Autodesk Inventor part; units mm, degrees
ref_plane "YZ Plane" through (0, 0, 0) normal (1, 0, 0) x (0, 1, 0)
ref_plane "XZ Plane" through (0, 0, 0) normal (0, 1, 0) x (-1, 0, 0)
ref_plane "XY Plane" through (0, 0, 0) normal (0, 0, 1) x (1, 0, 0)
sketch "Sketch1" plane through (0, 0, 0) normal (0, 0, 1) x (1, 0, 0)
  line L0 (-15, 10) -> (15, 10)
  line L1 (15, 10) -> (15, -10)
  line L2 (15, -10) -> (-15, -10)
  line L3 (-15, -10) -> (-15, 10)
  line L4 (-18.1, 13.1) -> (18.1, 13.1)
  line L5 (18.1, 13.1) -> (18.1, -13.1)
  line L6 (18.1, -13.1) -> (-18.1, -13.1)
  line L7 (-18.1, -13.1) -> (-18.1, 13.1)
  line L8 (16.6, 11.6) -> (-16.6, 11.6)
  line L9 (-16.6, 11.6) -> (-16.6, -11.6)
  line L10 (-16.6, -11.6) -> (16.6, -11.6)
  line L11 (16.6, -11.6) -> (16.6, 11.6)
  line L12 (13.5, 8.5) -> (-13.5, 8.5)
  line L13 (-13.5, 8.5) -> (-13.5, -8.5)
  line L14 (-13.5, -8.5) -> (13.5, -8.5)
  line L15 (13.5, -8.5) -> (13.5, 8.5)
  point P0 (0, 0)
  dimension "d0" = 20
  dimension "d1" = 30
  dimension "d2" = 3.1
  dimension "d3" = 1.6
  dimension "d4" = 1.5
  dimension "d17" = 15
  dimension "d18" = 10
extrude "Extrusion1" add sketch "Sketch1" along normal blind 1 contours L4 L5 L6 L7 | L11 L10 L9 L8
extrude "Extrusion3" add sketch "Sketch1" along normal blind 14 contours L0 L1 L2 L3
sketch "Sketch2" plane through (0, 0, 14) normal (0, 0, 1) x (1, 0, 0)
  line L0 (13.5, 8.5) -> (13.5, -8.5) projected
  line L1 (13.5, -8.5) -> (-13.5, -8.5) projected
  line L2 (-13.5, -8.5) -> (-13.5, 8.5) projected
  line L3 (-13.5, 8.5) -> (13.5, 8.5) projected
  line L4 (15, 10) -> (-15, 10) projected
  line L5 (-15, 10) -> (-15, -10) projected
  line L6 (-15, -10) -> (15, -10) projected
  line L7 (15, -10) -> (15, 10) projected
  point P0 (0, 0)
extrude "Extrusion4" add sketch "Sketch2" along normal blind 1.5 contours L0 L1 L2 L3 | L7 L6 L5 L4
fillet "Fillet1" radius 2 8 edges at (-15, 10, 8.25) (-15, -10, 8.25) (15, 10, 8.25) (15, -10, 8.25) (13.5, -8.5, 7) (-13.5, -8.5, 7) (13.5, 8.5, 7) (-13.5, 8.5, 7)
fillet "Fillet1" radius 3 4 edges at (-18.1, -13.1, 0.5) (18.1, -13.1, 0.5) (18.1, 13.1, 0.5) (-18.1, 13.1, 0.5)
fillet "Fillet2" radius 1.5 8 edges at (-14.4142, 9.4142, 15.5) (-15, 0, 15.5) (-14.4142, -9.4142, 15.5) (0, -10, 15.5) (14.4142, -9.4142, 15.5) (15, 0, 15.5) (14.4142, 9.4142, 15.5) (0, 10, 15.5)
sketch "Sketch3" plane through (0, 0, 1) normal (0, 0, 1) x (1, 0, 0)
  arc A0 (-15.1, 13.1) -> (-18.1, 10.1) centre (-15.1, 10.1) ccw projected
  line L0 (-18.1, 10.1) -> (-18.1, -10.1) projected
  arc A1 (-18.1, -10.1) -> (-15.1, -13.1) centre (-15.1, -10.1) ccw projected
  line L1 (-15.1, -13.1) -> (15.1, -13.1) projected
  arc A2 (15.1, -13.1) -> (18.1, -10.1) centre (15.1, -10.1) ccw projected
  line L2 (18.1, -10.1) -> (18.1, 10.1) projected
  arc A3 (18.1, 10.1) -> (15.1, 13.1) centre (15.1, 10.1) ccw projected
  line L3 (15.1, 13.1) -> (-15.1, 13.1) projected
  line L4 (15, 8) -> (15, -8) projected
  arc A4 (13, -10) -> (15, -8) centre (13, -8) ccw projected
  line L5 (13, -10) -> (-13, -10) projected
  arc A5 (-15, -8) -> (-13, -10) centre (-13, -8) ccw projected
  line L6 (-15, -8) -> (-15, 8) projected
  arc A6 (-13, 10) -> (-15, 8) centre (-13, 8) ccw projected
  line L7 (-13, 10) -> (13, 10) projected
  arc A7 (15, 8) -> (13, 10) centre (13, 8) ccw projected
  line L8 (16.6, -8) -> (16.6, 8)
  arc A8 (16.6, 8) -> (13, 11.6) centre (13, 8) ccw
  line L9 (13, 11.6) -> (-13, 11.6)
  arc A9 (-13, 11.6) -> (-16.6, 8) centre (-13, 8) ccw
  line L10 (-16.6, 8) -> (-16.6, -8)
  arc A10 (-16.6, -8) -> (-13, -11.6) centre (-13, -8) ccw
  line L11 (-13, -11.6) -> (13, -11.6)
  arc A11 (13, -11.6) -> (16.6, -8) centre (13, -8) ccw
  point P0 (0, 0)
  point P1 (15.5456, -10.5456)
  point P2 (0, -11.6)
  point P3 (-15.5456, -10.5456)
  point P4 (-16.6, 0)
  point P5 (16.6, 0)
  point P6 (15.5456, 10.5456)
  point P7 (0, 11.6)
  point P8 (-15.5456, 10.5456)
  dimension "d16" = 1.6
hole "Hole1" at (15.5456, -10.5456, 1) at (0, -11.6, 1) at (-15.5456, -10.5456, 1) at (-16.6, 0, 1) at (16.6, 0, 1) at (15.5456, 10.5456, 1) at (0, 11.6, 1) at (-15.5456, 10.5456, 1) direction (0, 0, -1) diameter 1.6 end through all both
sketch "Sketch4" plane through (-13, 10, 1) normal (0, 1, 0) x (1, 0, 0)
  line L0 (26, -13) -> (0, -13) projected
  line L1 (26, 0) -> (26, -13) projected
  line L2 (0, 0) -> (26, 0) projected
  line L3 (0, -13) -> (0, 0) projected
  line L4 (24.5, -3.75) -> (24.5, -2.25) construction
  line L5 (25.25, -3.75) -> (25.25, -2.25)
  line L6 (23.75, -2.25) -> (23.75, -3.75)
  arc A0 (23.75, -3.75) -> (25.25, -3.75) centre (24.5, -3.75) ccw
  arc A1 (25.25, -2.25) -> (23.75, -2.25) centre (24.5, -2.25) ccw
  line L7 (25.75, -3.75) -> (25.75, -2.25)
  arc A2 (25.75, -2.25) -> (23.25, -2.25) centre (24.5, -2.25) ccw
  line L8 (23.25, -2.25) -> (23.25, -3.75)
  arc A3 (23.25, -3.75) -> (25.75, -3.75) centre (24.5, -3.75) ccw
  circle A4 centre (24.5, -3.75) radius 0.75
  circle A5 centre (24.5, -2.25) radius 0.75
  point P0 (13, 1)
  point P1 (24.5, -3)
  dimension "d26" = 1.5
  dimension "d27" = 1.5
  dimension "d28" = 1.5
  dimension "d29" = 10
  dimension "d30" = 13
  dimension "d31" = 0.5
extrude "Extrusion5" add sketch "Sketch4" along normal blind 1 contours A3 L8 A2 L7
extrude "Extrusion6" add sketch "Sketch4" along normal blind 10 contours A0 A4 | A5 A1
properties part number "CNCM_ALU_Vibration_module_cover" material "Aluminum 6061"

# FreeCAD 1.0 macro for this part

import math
import FreeCAD as App
import Part
import Sketcher
from FreeCAD import Vector


def edges_at(feature, points):
    """Names of the edges that pass closest to the given points."""
    edges = feature.Shape.Edges
    near = lambda p: min(range(len(edges)), key=lambda i: edges[i].distToShape(Part.Vertex(*p))[0])
    return sorted({f"Edge{near(p) + 1}" for p in points})


def add_polygon(sketch, points):
    """Adds a closed chain of lines whose ends are joined by coincident constraints."""
    first, n = sketch.GeometryCount, len(points)
    for a, b in zip(points, points[1:] + points[:1]):
        sketch.addGeometry(Part.LineSegment(App.Vector(*a, 0), App.Vector(*b, 0)), False)
    for i in range(n):
        sketch.addConstraint(Sketcher.Constraint("Coincident", first + i, 2, first + (i + 1) % n, 1))

doc = App.newDocument("Part")
body = doc.addObject("PartDesign::Body", "Body")

sketch1 = doc.addObject("Sketcher::SketchObject", "Sketch")
body.addObject(sketch1)
sketch1.AttachmentSupport = (doc.XY_Plane, [""])
sketch1.MapMode = "FlatFace"
add_polygon(sketch1, [(18, 13), (-18, 13), (-18, -13), (18, -13)])
add_polygon(sketch1, [(-15, -10), (-15, 10), (15, 10), (15, -10)])
sketch1.addConstraint([
    Sketcher.Constraint("Horizontal", 0),
    Sketcher.Constraint("Vertical", 1),
    Sketcher.Constraint("Horizontal", 2),
    Sketcher.Constraint("Vertical", 3),
    Sketcher.Constraint("Vertical", 4),
    Sketcher.Constraint("Horizontal", 5),
    Sketcher.Constraint("Vertical", 6),
    Sketcher.Constraint("Horizontal", 7),
    Sketcher.Constraint("Symmetric", 0, 2, 2, 2, -1, 1),
    Sketcher.Constraint("Symmetric", 4, 2, 6, 2, -1, 1),
    Sketcher.Constraint("DistanceX", 5, 1, 5, 2, 30.0),
    Sketcher.Constraint("DistanceY", 4, 1, 4, 2, 20.0),
    Sketcher.Constraint("DistanceX", 0, 2, 4, 2, 3.1),
    Sketcher.Constraint("DistanceY", 4, 2, 0, 2, 3.1),
])
pad1 = doc.addObject("PartDesign::Pad", "Pad")
body.addObject(pad1)
pad1.Profile = sketch1
pad1.Length = 1

sketch2 = doc.addObject("Sketcher::SketchObject", "Sketch001")
body.addObject(sketch2)
sketch2.AttachmentSupport = (doc.XY_Plane, [""])
sketch2.MapMode = "FlatFace"
add_polygon(sketch2, [(15, 10), (-15, 10), (-15, -10), (15, -10)])
add_polygon(sketch2, [(-14, 8), (14, 8), (14, -8), (-14, -8)])
sketch2.addConstraint([
    Sketcher.Constraint("Horizontal", 0),
    Sketcher.Constraint("Vertical", 1),
    Sketcher.Constraint("Horizontal", 2),
    Sketcher.Constraint("Vertical", 3),
    Sketcher.Constraint("Horizontal", 4),
    Sketcher.Constraint("Vertical", 5),
    Sketcher.Constraint("Horizontal", 6),
    Sketcher.Constraint("Vertical", 7),
    Sketcher.Constraint("Symmetric", 0, 2, 2, 2, -1, 1),
    Sketcher.Constraint("Symmetric", 4, 2, 6, 2, -1, 1),
    Sketcher.Constraint("DistanceX", 0, 2, 0, 1, 30.0),
    Sketcher.Constraint("DistanceY", 1, 2, 1, 1, 20.0),
    Sketcher.Constraint("DistanceX", 4, 2, 3, 2, 1.5),
    Sketcher.Constraint("DistanceY", 4, 2, 3, 2, 1.5),
])
pad2 = doc.addObject("PartDesign::Pad", "Pad001")
body.addObject(pad2)
pad2.Profile = sketch2
pad2.Length = 14

sketch3 = doc.addObject("Sketcher::SketchObject", "Sketch002")
body.addObject(sketch3)
sketch3.AttachmentSupport = (doc.XY_Plane, [""])
sketch3.MapMode = "FlatFace"
sketch3.AttachmentOffset = App.Placement(Vector(0, 0, 14), App.Rotation())
add_polygon(sketch3, [(15, -10), (15, 10), (-15, 10), (-15, -10)])
sketch3.addConstraint([
    Sketcher.Constraint("Vertical", 0),
    Sketcher.Constraint("Horizontal", 1),
    Sketcher.Constraint("Vertical", 2),
    Sketcher.Constraint("Horizontal", 3),
    Sketcher.Constraint("Symmetric", 0, 2, 2, 2, -1, 1),
    Sketcher.Constraint("DistanceX", 1, 2, 1, 1, 30.0),
    Sketcher.Constraint("DistanceY", 0, 1, 0, 2, 20.0),
])
pad3 = doc.addObject("PartDesign::Pad", "Pad002")
body.addObject(pad3)
pad3.Profile = sketch3
pad3.Length = 1.5
doc.recompute()

fillet = doc.addObject("PartDesign::Fillet", "Fillet")
body.addObject(fillet)
fillet.Base = (pad3, edges_at(pad3, [
    (-15, 10, 8.25),
    (-15, -10, 8.25),
    (15, 10, 8.25),
    (15, -10, 8.25),
    (13.5, -8.5, 7),
    (-13.5, -8.5, 7),
    (13.5, 8.5, 7),
    (-13.5, 8.5, 7),
]))
fillet.Radius = 2
doc.recompute()

fillet2 = doc.addObject("PartDesign::Fillet", "Fillet001")
body.addObject(fillet2)
fillet2.Base = (fillet, edges_at(fillet, [
    (-18.1, -13.1, 0.5),
    (18.1, -13.1, 0.5),
    (18.1, 13.1, 0.5),
    (-18.1, 13.1, 0.5),
]))
fillet2.Radius = 3
doc.recompute()

fillet3 = doc.addObject("PartDesign::Fillet", "Fillet002")
body.addObject(fillet3)
fillet3.Base = (fillet2, edges_at(fillet2, [
    (-14.414, 9.414, 15.5),
    (-15, 0, 15.5),
    (-14.414, -9.414, 15.5),
    (0, -10, 15.5),
    (14.414, -9.414, 15.5),
    (15, 0, 15.5),
    (14.414, 9.414, 15.5),
    (0, 10, 15.5),
]))
fillet3.Radius = 1.5

sketch4 = doc.addObject("Sketcher::SketchObject", "Sketch003")
body.addObject(sketch4)
sketch4.AttachmentSupport = (doc.XY_Plane, [""])
sketch4.MapMode = "FlatFace"
sketch4.AttachmentOffset = App.Placement(Vector(0, 0, 1), App.Rotation())
sketch4.addGeometry([
    Part.Circle(Vector(15.5, -10.5, 0), Vector(0, 0, 1), 0.8),
    Part.Circle(Vector(0, -11.6, 0), Vector(0, 0, 1), 0.8),
    Part.Circle(Vector(-15.5, -10.5, 0), Vector(0, 0, 1), 0.8),
    Part.Circle(Vector(-16.6, 0, 0), Vector(0, 0, 1), 0.8),
    Part.Circle(Vector(16.6, 0, 0), Vector(0, 0, 1), 0.8),
    Part.Circle(Vector(15.5, 10.5, 0), Vector(0, 0, 1), 0.8),
    Part.Circle(Vector(0, 11.6, 0), Vector(0, 0, 1), 0.8),
    Part.Circle(Vector(-15.5, 10.5, 0), Vector(0, 0, 1), 0.8),
], False)
sketch4.addConstraint([
    Sketcher.Constraint("Equal", 0, 1),
    Sketcher.Constraint("Equal", 1, 2),
    Sketcher.Constraint("Equal", 2, 3),
    Sketcher.Constraint("Equal", 3, 4),
    Sketcher.Constraint("Equal", 4, 5),
    Sketcher.Constraint("Equal", 5, 6),
    Sketcher.Constraint("Equal", 6, 7),
    Sketcher.Constraint("Symmetric", 3, 3, 4, 3, -1, 1),
    Sketcher.Constraint("Symmetric", 2, 3, 5, 3, -1, 1),
    Sketcher.Constraint("Symmetric", 1, 3, 6, 3, -1, 1),
    Sketcher.Constraint("Symmetric", 0, 3, 7, 3, -1, 1),
    Sketcher.Constraint("Symmetric", 0, 3, 2, 3, -2),
    Sketcher.Constraint("PointOnObject", 1, 3, -2),
    Sketcher.Constraint("PointOnObject", 3, 3, -1),
    Sketcher.Constraint("Diameter", 0, 1.6),
    Sketcher.Constraint("DistanceY", 1, 3, -1, 1, 11.6),
    Sketcher.Constraint("DistanceX", 3, 3, -1, 1, 16.6),
    Sketcher.Constraint("DistanceX", -1, 1, 0, 3, 15.5456),
    Sketcher.Constraint("DistanceY", 0, 3, -1, 1, 10.5456),
])
doc.recompute()
hole = doc.addObject("PartDesign::Hole", "Hole")
body.addObject(hole)
hole.Profile = sketch4
hole.ThreadType = "None"
hole.Diameter = 1.6
hole.DepthType = "ThroughAll"

sketch5 = doc.addObject("Sketcher::SketchObject", "Sketch004")
body.addObject(sketch5)
sketch5.AttachmentSupport = (doc.XZ_Plane, [""])
sketch5.MapMode = "FlatFace"
sketch5.AttachmentOffset = App.Placement(Vector(0, 0, -10), App.Rotation())
sketch5.addGeometry([
    Part.ArcOfCircle(Part.Circle(Vector(11.5, 4.8, 0), Vector(0, 0, 1), 1.2), math.radians(0), math.radians(180)),
    Part.LineSegment(Vector(12.8, 4.8, 0), Vector(12.8, 3.2, 0)),
    Part.ArcOfCircle(Part.Circle(Vector(11.5, 3.2, 0), Vector(0, 0, 1), 1.2), math.radians(180), math.radians(360)),
    Part.LineSegment(Vector(10.2, 3.2, 0), Vector(10.2, 4.8, 0)),
    Part.LineSegment(Vector(12.2, 3.2, 0), Vector(12.2, 4.8, 0)),
    Part.ArcOfCircle(Part.Circle(Vector(11.5, 4.8, 0), Vector(0, 0, 1), 0.8), math.radians(0), math.radians(180)),
    Part.LineSegment(Vector(10.8, 4.8, 0), Vector(10.8, 3.2, 0)),
    Part.ArcOfCircle(Part.Circle(Vector(11.5, 3.2, 0), Vector(0, 0, 1), 0.8), math.radians(180), math.radians(360)),
], False)
sketch5.addConstraint([
    Sketcher.Constraint("Tangent", 0, 1, 1, 1),
    Sketcher.Constraint("Tangent", 1, 2, 2, 2),
    Sketcher.Constraint("Tangent", 2, 1, 3, 1),
    Sketcher.Constraint("Tangent", 3, 2, 0, 2),
    Sketcher.Constraint("Tangent", 4, 2, 5, 1),
    Sketcher.Constraint("Tangent", 5, 2, 6, 1),
    Sketcher.Constraint("Tangent", 6, 2, 7, 1),
    Sketcher.Constraint("Tangent", 7, 2, 4, 1),
    Sketcher.Constraint("Vertical", 1),
    Sketcher.Constraint("Vertical", 3),
    Sketcher.Constraint("Vertical", 4),
    Sketcher.Constraint("Vertical", 6),
    Sketcher.Constraint("Coincident", 5, 3, 0, 3),
    Sketcher.Constraint("Horizontal", 7, 3, 1, 2),
    Sketcher.Constraint("Radius", 5, 0.75),
    Sketcher.Constraint("DistanceY", 1, 2, 1, 1, 1.5),
    Sketcher.Constraint("DistanceX", 4, 2, 0, 1, 0.5),
    Sketcher.Constraint("DistanceX", -1, 1, 0, 3, 11.5),
    Sketcher.Constraint("DistanceY", -1, 1, 0, 3, 4.75),
])
pad4 = doc.addObject("PartDesign::Pad", "Pad003")
body.addObject(pad4)
pad4.Profile = sketch5
pad4.Length = 1
pad4.Reversed = True

sketch6 = doc.addObject("Sketcher::SketchObject", "Sketch005")
body.addObject(sketch6)
sketch6.AttachmentSupport = (doc.XZ_Plane, [""])
sketch6.MapMode = "FlatFace"
sketch6.AttachmentOffset = App.Placement(Vector(0, 0, -10), App.Rotation())
sketch6.addGeometry([
    Part.Circle(Vector(11.5, 4.8, 0), Vector(0, 0, 1), 0.8),
    Part.Circle(Vector(11.5, 3.2, 0), Vector(0, 0, 1), 0.8),
], False)
sketch6.addConstraint([
    Sketcher.Constraint("Equal", 0, 1),
    Sketcher.Constraint("Vertical", 0, 3, 1, 3),
    Sketcher.Constraint("Diameter", 0, 1.5),
    Sketcher.Constraint("DistanceY", 1, 3, 0, 3, 1.5),
    Sketcher.Constraint("DistanceX", -1, 1, 0, 3, 11.5),
    Sketcher.Constraint("DistanceY", -1, 1, 0, 3, 4.75),
])
pad5 = doc.addObject("PartDesign::Pad", "Pad004")
body.addObject(pad5)
pad5.Profile = sketch6
pad5.Length = 10
pad5.Reversed = True

doc.recompute()
